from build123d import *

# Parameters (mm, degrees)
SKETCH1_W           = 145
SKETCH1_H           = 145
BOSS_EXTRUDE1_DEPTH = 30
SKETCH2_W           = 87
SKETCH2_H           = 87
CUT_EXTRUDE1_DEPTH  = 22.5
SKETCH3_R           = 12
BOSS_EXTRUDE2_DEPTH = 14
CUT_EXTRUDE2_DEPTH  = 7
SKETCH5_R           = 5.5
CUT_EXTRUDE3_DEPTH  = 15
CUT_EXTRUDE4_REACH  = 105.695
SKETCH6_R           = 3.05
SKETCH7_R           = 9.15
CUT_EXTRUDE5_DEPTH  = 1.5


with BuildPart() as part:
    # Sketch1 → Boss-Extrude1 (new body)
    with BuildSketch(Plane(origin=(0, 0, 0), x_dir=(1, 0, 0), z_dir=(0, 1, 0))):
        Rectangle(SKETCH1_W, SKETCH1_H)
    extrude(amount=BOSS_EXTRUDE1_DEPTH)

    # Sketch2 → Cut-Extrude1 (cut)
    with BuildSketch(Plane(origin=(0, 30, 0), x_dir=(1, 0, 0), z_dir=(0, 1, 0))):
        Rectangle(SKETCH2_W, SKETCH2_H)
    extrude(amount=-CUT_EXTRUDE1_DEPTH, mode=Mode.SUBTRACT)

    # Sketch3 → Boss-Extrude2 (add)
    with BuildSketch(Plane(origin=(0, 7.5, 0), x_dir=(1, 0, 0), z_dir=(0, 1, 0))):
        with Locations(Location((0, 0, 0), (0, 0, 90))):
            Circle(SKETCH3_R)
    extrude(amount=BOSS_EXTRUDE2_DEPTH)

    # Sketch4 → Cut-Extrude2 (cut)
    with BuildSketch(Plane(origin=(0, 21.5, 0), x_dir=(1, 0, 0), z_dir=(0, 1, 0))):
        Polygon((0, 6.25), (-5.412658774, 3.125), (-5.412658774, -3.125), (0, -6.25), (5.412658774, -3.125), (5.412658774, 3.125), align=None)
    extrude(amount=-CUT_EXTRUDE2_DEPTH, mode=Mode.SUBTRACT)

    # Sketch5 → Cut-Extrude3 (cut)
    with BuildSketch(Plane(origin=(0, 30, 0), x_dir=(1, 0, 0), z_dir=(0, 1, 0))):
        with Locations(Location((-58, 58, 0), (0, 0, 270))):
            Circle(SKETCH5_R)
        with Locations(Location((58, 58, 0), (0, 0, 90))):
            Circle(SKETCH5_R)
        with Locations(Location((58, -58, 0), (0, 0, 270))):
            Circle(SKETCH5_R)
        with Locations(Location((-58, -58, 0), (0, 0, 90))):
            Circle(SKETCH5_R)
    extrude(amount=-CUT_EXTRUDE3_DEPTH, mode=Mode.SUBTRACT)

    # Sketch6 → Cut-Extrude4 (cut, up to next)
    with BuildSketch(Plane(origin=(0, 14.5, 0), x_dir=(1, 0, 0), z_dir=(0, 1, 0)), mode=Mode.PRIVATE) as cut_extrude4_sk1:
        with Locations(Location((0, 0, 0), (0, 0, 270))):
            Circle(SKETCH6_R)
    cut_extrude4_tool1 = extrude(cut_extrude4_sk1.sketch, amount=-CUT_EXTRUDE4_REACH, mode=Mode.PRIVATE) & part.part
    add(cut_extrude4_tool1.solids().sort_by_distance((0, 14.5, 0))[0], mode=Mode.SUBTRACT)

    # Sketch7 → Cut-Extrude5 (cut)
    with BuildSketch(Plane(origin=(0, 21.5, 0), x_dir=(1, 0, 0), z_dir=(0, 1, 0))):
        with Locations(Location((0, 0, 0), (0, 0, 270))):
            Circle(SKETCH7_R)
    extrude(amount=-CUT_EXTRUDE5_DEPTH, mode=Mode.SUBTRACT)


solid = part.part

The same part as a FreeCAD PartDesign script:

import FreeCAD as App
import Part
import Sketcher

V = App.Vector
Q = App.Units.Quantity


def add_polygon(sketch, points):
    """Adds a closed chain of lines whose ends are joined by coincident constraints."""
    first, n = sketch.GeometryCount, len(points)
    for a, b in zip(points, points[1:] + points[:1]):
        sketch.addGeometry(Part.LineSegment(App.Vector(*a, 0), App.Vector(*b, 0)), False)
    for i in range(n):
        sketch.addConstraint(Sketcher.Constraint("Coincident", first + i, 2, first + (i + 1) % n, 1))

doc = App.newDocument("Part")
params = doc.addObject("Spreadsheet::Sheet", "Params")
for row, (alias, value) in enumerate([
    ("sketch1_width", "145 mm"),
    ("pad1_length", "30 mm"),
    ("sketch2_width", "87 mm"),
    ("pocket1_length", "22.5 mm"),
    ("sketch3_diameter", "24 mm"),
    ("pad2_length", "14 mm"),
    ("sketch4_height", "6.25 mm"),
    ("pocket2_length", "7 mm"),
    ("sketch5_diameter", "11 mm"),
    ("pocket3_length", "15 mm"),
    ("sketch6_diameter", "6.1 mm"),
    ("sketch7_diameter", "18.3 mm"),
    ("pocket5_length", "1.5 mm"),
], start=1):
    params.set(f"A{row}", alias)
    params.set(f"B{row}", "=" + value)
    params.setAlias(f"B{row}", alias)

body = doc.addObject("PartDesign::Body", "Body")

sketch1 = doc.addObject("Sketcher::SketchObject", "Sketch")
body.addObject(sketch1)
sketch1.AttachmentSupport = (doc.XZ_Plane, [""])
sketch1.MapMode = "FlatFace"
add_polygon(sketch1, [(-72.5, -72.5), (-72.5, 72.5), (72.5, 72.5), (72.5, -72.5)])
sketch1.addConstraint([
    Sketcher.Constraint("Vertical", 0),
    Sketcher.Constraint("Horizontal", 1),
    Sketcher.Constraint("Vertical", 2),
    Sketcher.Constraint("Horizontal", 3),
    Sketcher.Constraint("Symmetric", 0, 2, 2, 2, -1, 1),
    Sketcher.Constraint("Equal", 3, 0),
    Sketcher.Constraint("DistanceX", 1, 1, 1, 2, 145.0),
])
sketch1.setExpression("Constraints[10]", "Params.sketch1_width")
pad1 = doc.addObject("PartDesign::Pad", "Pad")
body.addObject(pad1)
pad1.Profile = sketch1
pad1.setExpression("Length", "Params.pad1_length")
pad1.Reversed = True

sketch2 = doc.addObject("Sketcher::SketchObject", "Sketch001")
body.addObject(sketch2)
sketch2.AttachmentSupport = (doc.XZ_Plane, [""])
sketch2.MapMode = "FlatFace"
sketch2.AttachmentOffset = App.Placement(V(0, 0, -30), App.Rotation())
add_polygon(sketch2, [(-43.5, -43.5), (-43.5, 43.5), (43.5, 43.5), (43.5, -43.5)])
sketch2.addConstraint([
    Sketcher.Constraint("Vertical", 0),
    Sketcher.Constraint("Horizontal", 1),
    Sketcher.Constraint("Vertical", 2),
    Sketcher.Constraint("Horizontal", 3),
    Sketcher.Constraint("Symmetric", 0, 2, 2, 2, -1, 1),
    Sketcher.Constraint("Equal", 3, 0),
    Sketcher.Constraint("DistanceX", 1, 1, 1, 2, 87.0),
])
sketch2.setExpression("Constraints[10]", "Params.sketch2_width")
pocket1 = doc.addObject("PartDesign::Pocket", "Pocket")
body.addObject(pocket1)
pocket1.Profile = sketch2
pocket1.setExpression("Length", "Params.pocket1_length")
pocket1.Reversed = True

sketch3 = doc.addObject("Sketcher::SketchObject", "Sketch002")
body.addObject(sketch3)
sketch3.AttachmentSupport = (doc.XZ_Plane, [""])
sketch3.MapMode = "FlatFace"
sketch3.AttachmentOffset = App.Placement(V(0, 0, -7.5), App.Rotation())
sketch3.addGeometry(Part.Circle(V(0, 0, 0), V(0, 0, 1), 12), False)
sketch3.addConstraint([
    Sketcher.Constraint("Coincident", 0, 3, -1, 1),
    Sketcher.Constraint("Diameter", 0, 24.0),
])
sketch3.setExpression("Constraints[1]", "Params.sketch3_diameter")
pad2 = doc.addObject("PartDesign::Pad", "Pad001")
body.addObject(pad2)
pad2.Profile = sketch3
pad2.setExpression("Length", "Params.pad2_length")
pad2.Reversed = True

sketch4 = doc.addObject("Sketcher::SketchObject", "Sketch003")
body.addObject(sketch4)
sketch4.AttachmentSupport = (doc.XZ_Plane, [""])
sketch4.MapMode = "FlatFace"
sketch4.AttachmentOffset = App.Placement(V(0, 0, -21.5), App.Rotation())
add_polygon(sketch4, [(0, -6.25), (-5.412659, -3.125), (-5.412659, 3.125), (0, 6.25), (5.412659, 3.125), (5.412659, -3.125)])
sketch4.addConstraint([
    Sketcher.Constraint("Vertical", 1),
    Sketcher.Constraint("Vertical", 4),
    Sketcher.Constraint("Symmetric", 0, 2, 3, 2, -1, 1),
    Sketcher.Constraint("Symmetric", 2, 2, 5, 2, -1, 1),
    Sketcher.Constraint("PointOnObject", 2, 2, -2),
    Sketcher.Constraint("Parallel", 2, 5),
    Sketcher.Constraint("Horizontal", 1, 2, 3, 2),
    Sketcher.Constraint("Angle", 0, Q("150 deg")),
    Sketcher.Constraint("DistanceY", 1, 1, 1, 2, 6.25),
    Sketcher.Constraint("DistanceY", 5, 2, 2, 2, 12.5),
])
sketch4.setExpression("Constraints[14]", "Params.sketch4_height")
pocket2 = doc.addObject("PartDesign::Pocket", "Pocket001")
body.addObject(pocket2)
pocket2.Profile = sketch4
pocket2.setExpression("Length", "Params.pocket2_length")
pocket2.Reversed = True

sketch5 = doc.addObject("Sketcher::SketchObject", "Sketch004")
body.addObject(sketch5)
sketch5.AttachmentSupport = (doc.XZ_Plane, [""])
sketch5.MapMode = "FlatFace"
sketch5.AttachmentOffset = App.Placement(V(0, 0, -30), App.Rotation())
sketch5.addGeometry([
    Part.Circle(V(-58, -58, 0), V(0, 0, 1), 5.5),
    Part.Circle(V(58, -58, 0), V(0, 0, 1), 5.5),
    Part.Circle(V(58, 58, 0), V(0, 0, 1), 5.5),
    Part.Circle(V(-58, 58, 0), V(0, 0, 1), 5.5),
], False)
sketch5.addConstraint([
    Sketcher.Constraint("Equal", 0, 1),
    Sketcher.Constraint("Equal", 1, 2),
    Sketcher.Constraint("Equal", 2, 3),
    Sketcher.Constraint("Symmetric", 0, 3, 2, 3, -1, 1),
    Sketcher.Constraint("Symmetric", 1, 3, 3, 3, -1, 1),
    Sketcher.Constraint("Symmetric", 0, 3, 1, 3, -2),
    Sketcher.Constraint("Diameter", 0, 11.0),
    Sketcher.Constraint("DistanceX", 0, 3, -1, 1, 58.0),
    Sketcher.Constraint("DistanceY", 0, 3, -1, 1, 58.0),
])
sketch5.setExpression("Constraints[6]", "Params.sketch5_diameter")
pocket3 = doc.addObject("PartDesign::Pocket", "Pocket002")
body.addObject(pocket3)
pocket3.Profile = sketch5
pocket3.setExpression("Length", "Params.pocket3_length")
pocket3.Reversed = True

sketch6 = doc.addObject("Sketcher::SketchObject", "Sketch005")
body.addObject(sketch6)
sketch6.AttachmentSupport = (doc.XZ_Plane, [""])
sketch6.MapMode = "FlatFace"
sketch6.AttachmentOffset = App.Placement(V(0, 0, -14.5), App.Rotation())
sketch6.addGeometry(Part.Circle(V(0, 0, 0), V(0, 0, 1), 3.05), False)
sketch6.addConstraint([
    Sketcher.Constraint("Coincident", 0, 3, -1, 1),
    Sketcher.Constraint("Diameter", 0, 6.1),
])
sketch6.setExpression("Constraints[1]", "Params.sketch6_diameter")
pocket4 = doc.addObject("PartDesign::Pocket", "Pocket003")
body.addObject(pocket4)
pocket4.Profile = sketch6
pocket4.Type = "UpToFirst"
pocket4.Reversed = True

sketch7 = doc.addObject("Sketcher::SketchObject", "Sketch006")
body.addObject(sketch7)
sketch7.AttachmentSupport = (doc.XZ_Plane, [""])
sketch7.MapMode = "FlatFace"
sketch7.AttachmentOffset = App.Placement(V(0, 0, -21.5), App.Rotation())
sketch7.addGeometry(Part.Circle(V(0, 0, 0), V(0, 0, 1), 9.15), False)
sketch7.addConstraint([
    Sketcher.Constraint("Coincident", 0, 3, -1, 1),
    Sketcher.Constraint("Diameter", 0, 18.3),
])
sketch7.setExpression("Constraints[1]", "Params.sketch7_diameter")
pocket5 = doc.addObject("PartDesign::Pocket", "Pocket004")
body.addObject(pocket5)
pocket5.Profile = sketch7
pocket5.setExpression("Length", "Params.pocket5_length")
pocket5.Reversed = True

doc.recompute()
